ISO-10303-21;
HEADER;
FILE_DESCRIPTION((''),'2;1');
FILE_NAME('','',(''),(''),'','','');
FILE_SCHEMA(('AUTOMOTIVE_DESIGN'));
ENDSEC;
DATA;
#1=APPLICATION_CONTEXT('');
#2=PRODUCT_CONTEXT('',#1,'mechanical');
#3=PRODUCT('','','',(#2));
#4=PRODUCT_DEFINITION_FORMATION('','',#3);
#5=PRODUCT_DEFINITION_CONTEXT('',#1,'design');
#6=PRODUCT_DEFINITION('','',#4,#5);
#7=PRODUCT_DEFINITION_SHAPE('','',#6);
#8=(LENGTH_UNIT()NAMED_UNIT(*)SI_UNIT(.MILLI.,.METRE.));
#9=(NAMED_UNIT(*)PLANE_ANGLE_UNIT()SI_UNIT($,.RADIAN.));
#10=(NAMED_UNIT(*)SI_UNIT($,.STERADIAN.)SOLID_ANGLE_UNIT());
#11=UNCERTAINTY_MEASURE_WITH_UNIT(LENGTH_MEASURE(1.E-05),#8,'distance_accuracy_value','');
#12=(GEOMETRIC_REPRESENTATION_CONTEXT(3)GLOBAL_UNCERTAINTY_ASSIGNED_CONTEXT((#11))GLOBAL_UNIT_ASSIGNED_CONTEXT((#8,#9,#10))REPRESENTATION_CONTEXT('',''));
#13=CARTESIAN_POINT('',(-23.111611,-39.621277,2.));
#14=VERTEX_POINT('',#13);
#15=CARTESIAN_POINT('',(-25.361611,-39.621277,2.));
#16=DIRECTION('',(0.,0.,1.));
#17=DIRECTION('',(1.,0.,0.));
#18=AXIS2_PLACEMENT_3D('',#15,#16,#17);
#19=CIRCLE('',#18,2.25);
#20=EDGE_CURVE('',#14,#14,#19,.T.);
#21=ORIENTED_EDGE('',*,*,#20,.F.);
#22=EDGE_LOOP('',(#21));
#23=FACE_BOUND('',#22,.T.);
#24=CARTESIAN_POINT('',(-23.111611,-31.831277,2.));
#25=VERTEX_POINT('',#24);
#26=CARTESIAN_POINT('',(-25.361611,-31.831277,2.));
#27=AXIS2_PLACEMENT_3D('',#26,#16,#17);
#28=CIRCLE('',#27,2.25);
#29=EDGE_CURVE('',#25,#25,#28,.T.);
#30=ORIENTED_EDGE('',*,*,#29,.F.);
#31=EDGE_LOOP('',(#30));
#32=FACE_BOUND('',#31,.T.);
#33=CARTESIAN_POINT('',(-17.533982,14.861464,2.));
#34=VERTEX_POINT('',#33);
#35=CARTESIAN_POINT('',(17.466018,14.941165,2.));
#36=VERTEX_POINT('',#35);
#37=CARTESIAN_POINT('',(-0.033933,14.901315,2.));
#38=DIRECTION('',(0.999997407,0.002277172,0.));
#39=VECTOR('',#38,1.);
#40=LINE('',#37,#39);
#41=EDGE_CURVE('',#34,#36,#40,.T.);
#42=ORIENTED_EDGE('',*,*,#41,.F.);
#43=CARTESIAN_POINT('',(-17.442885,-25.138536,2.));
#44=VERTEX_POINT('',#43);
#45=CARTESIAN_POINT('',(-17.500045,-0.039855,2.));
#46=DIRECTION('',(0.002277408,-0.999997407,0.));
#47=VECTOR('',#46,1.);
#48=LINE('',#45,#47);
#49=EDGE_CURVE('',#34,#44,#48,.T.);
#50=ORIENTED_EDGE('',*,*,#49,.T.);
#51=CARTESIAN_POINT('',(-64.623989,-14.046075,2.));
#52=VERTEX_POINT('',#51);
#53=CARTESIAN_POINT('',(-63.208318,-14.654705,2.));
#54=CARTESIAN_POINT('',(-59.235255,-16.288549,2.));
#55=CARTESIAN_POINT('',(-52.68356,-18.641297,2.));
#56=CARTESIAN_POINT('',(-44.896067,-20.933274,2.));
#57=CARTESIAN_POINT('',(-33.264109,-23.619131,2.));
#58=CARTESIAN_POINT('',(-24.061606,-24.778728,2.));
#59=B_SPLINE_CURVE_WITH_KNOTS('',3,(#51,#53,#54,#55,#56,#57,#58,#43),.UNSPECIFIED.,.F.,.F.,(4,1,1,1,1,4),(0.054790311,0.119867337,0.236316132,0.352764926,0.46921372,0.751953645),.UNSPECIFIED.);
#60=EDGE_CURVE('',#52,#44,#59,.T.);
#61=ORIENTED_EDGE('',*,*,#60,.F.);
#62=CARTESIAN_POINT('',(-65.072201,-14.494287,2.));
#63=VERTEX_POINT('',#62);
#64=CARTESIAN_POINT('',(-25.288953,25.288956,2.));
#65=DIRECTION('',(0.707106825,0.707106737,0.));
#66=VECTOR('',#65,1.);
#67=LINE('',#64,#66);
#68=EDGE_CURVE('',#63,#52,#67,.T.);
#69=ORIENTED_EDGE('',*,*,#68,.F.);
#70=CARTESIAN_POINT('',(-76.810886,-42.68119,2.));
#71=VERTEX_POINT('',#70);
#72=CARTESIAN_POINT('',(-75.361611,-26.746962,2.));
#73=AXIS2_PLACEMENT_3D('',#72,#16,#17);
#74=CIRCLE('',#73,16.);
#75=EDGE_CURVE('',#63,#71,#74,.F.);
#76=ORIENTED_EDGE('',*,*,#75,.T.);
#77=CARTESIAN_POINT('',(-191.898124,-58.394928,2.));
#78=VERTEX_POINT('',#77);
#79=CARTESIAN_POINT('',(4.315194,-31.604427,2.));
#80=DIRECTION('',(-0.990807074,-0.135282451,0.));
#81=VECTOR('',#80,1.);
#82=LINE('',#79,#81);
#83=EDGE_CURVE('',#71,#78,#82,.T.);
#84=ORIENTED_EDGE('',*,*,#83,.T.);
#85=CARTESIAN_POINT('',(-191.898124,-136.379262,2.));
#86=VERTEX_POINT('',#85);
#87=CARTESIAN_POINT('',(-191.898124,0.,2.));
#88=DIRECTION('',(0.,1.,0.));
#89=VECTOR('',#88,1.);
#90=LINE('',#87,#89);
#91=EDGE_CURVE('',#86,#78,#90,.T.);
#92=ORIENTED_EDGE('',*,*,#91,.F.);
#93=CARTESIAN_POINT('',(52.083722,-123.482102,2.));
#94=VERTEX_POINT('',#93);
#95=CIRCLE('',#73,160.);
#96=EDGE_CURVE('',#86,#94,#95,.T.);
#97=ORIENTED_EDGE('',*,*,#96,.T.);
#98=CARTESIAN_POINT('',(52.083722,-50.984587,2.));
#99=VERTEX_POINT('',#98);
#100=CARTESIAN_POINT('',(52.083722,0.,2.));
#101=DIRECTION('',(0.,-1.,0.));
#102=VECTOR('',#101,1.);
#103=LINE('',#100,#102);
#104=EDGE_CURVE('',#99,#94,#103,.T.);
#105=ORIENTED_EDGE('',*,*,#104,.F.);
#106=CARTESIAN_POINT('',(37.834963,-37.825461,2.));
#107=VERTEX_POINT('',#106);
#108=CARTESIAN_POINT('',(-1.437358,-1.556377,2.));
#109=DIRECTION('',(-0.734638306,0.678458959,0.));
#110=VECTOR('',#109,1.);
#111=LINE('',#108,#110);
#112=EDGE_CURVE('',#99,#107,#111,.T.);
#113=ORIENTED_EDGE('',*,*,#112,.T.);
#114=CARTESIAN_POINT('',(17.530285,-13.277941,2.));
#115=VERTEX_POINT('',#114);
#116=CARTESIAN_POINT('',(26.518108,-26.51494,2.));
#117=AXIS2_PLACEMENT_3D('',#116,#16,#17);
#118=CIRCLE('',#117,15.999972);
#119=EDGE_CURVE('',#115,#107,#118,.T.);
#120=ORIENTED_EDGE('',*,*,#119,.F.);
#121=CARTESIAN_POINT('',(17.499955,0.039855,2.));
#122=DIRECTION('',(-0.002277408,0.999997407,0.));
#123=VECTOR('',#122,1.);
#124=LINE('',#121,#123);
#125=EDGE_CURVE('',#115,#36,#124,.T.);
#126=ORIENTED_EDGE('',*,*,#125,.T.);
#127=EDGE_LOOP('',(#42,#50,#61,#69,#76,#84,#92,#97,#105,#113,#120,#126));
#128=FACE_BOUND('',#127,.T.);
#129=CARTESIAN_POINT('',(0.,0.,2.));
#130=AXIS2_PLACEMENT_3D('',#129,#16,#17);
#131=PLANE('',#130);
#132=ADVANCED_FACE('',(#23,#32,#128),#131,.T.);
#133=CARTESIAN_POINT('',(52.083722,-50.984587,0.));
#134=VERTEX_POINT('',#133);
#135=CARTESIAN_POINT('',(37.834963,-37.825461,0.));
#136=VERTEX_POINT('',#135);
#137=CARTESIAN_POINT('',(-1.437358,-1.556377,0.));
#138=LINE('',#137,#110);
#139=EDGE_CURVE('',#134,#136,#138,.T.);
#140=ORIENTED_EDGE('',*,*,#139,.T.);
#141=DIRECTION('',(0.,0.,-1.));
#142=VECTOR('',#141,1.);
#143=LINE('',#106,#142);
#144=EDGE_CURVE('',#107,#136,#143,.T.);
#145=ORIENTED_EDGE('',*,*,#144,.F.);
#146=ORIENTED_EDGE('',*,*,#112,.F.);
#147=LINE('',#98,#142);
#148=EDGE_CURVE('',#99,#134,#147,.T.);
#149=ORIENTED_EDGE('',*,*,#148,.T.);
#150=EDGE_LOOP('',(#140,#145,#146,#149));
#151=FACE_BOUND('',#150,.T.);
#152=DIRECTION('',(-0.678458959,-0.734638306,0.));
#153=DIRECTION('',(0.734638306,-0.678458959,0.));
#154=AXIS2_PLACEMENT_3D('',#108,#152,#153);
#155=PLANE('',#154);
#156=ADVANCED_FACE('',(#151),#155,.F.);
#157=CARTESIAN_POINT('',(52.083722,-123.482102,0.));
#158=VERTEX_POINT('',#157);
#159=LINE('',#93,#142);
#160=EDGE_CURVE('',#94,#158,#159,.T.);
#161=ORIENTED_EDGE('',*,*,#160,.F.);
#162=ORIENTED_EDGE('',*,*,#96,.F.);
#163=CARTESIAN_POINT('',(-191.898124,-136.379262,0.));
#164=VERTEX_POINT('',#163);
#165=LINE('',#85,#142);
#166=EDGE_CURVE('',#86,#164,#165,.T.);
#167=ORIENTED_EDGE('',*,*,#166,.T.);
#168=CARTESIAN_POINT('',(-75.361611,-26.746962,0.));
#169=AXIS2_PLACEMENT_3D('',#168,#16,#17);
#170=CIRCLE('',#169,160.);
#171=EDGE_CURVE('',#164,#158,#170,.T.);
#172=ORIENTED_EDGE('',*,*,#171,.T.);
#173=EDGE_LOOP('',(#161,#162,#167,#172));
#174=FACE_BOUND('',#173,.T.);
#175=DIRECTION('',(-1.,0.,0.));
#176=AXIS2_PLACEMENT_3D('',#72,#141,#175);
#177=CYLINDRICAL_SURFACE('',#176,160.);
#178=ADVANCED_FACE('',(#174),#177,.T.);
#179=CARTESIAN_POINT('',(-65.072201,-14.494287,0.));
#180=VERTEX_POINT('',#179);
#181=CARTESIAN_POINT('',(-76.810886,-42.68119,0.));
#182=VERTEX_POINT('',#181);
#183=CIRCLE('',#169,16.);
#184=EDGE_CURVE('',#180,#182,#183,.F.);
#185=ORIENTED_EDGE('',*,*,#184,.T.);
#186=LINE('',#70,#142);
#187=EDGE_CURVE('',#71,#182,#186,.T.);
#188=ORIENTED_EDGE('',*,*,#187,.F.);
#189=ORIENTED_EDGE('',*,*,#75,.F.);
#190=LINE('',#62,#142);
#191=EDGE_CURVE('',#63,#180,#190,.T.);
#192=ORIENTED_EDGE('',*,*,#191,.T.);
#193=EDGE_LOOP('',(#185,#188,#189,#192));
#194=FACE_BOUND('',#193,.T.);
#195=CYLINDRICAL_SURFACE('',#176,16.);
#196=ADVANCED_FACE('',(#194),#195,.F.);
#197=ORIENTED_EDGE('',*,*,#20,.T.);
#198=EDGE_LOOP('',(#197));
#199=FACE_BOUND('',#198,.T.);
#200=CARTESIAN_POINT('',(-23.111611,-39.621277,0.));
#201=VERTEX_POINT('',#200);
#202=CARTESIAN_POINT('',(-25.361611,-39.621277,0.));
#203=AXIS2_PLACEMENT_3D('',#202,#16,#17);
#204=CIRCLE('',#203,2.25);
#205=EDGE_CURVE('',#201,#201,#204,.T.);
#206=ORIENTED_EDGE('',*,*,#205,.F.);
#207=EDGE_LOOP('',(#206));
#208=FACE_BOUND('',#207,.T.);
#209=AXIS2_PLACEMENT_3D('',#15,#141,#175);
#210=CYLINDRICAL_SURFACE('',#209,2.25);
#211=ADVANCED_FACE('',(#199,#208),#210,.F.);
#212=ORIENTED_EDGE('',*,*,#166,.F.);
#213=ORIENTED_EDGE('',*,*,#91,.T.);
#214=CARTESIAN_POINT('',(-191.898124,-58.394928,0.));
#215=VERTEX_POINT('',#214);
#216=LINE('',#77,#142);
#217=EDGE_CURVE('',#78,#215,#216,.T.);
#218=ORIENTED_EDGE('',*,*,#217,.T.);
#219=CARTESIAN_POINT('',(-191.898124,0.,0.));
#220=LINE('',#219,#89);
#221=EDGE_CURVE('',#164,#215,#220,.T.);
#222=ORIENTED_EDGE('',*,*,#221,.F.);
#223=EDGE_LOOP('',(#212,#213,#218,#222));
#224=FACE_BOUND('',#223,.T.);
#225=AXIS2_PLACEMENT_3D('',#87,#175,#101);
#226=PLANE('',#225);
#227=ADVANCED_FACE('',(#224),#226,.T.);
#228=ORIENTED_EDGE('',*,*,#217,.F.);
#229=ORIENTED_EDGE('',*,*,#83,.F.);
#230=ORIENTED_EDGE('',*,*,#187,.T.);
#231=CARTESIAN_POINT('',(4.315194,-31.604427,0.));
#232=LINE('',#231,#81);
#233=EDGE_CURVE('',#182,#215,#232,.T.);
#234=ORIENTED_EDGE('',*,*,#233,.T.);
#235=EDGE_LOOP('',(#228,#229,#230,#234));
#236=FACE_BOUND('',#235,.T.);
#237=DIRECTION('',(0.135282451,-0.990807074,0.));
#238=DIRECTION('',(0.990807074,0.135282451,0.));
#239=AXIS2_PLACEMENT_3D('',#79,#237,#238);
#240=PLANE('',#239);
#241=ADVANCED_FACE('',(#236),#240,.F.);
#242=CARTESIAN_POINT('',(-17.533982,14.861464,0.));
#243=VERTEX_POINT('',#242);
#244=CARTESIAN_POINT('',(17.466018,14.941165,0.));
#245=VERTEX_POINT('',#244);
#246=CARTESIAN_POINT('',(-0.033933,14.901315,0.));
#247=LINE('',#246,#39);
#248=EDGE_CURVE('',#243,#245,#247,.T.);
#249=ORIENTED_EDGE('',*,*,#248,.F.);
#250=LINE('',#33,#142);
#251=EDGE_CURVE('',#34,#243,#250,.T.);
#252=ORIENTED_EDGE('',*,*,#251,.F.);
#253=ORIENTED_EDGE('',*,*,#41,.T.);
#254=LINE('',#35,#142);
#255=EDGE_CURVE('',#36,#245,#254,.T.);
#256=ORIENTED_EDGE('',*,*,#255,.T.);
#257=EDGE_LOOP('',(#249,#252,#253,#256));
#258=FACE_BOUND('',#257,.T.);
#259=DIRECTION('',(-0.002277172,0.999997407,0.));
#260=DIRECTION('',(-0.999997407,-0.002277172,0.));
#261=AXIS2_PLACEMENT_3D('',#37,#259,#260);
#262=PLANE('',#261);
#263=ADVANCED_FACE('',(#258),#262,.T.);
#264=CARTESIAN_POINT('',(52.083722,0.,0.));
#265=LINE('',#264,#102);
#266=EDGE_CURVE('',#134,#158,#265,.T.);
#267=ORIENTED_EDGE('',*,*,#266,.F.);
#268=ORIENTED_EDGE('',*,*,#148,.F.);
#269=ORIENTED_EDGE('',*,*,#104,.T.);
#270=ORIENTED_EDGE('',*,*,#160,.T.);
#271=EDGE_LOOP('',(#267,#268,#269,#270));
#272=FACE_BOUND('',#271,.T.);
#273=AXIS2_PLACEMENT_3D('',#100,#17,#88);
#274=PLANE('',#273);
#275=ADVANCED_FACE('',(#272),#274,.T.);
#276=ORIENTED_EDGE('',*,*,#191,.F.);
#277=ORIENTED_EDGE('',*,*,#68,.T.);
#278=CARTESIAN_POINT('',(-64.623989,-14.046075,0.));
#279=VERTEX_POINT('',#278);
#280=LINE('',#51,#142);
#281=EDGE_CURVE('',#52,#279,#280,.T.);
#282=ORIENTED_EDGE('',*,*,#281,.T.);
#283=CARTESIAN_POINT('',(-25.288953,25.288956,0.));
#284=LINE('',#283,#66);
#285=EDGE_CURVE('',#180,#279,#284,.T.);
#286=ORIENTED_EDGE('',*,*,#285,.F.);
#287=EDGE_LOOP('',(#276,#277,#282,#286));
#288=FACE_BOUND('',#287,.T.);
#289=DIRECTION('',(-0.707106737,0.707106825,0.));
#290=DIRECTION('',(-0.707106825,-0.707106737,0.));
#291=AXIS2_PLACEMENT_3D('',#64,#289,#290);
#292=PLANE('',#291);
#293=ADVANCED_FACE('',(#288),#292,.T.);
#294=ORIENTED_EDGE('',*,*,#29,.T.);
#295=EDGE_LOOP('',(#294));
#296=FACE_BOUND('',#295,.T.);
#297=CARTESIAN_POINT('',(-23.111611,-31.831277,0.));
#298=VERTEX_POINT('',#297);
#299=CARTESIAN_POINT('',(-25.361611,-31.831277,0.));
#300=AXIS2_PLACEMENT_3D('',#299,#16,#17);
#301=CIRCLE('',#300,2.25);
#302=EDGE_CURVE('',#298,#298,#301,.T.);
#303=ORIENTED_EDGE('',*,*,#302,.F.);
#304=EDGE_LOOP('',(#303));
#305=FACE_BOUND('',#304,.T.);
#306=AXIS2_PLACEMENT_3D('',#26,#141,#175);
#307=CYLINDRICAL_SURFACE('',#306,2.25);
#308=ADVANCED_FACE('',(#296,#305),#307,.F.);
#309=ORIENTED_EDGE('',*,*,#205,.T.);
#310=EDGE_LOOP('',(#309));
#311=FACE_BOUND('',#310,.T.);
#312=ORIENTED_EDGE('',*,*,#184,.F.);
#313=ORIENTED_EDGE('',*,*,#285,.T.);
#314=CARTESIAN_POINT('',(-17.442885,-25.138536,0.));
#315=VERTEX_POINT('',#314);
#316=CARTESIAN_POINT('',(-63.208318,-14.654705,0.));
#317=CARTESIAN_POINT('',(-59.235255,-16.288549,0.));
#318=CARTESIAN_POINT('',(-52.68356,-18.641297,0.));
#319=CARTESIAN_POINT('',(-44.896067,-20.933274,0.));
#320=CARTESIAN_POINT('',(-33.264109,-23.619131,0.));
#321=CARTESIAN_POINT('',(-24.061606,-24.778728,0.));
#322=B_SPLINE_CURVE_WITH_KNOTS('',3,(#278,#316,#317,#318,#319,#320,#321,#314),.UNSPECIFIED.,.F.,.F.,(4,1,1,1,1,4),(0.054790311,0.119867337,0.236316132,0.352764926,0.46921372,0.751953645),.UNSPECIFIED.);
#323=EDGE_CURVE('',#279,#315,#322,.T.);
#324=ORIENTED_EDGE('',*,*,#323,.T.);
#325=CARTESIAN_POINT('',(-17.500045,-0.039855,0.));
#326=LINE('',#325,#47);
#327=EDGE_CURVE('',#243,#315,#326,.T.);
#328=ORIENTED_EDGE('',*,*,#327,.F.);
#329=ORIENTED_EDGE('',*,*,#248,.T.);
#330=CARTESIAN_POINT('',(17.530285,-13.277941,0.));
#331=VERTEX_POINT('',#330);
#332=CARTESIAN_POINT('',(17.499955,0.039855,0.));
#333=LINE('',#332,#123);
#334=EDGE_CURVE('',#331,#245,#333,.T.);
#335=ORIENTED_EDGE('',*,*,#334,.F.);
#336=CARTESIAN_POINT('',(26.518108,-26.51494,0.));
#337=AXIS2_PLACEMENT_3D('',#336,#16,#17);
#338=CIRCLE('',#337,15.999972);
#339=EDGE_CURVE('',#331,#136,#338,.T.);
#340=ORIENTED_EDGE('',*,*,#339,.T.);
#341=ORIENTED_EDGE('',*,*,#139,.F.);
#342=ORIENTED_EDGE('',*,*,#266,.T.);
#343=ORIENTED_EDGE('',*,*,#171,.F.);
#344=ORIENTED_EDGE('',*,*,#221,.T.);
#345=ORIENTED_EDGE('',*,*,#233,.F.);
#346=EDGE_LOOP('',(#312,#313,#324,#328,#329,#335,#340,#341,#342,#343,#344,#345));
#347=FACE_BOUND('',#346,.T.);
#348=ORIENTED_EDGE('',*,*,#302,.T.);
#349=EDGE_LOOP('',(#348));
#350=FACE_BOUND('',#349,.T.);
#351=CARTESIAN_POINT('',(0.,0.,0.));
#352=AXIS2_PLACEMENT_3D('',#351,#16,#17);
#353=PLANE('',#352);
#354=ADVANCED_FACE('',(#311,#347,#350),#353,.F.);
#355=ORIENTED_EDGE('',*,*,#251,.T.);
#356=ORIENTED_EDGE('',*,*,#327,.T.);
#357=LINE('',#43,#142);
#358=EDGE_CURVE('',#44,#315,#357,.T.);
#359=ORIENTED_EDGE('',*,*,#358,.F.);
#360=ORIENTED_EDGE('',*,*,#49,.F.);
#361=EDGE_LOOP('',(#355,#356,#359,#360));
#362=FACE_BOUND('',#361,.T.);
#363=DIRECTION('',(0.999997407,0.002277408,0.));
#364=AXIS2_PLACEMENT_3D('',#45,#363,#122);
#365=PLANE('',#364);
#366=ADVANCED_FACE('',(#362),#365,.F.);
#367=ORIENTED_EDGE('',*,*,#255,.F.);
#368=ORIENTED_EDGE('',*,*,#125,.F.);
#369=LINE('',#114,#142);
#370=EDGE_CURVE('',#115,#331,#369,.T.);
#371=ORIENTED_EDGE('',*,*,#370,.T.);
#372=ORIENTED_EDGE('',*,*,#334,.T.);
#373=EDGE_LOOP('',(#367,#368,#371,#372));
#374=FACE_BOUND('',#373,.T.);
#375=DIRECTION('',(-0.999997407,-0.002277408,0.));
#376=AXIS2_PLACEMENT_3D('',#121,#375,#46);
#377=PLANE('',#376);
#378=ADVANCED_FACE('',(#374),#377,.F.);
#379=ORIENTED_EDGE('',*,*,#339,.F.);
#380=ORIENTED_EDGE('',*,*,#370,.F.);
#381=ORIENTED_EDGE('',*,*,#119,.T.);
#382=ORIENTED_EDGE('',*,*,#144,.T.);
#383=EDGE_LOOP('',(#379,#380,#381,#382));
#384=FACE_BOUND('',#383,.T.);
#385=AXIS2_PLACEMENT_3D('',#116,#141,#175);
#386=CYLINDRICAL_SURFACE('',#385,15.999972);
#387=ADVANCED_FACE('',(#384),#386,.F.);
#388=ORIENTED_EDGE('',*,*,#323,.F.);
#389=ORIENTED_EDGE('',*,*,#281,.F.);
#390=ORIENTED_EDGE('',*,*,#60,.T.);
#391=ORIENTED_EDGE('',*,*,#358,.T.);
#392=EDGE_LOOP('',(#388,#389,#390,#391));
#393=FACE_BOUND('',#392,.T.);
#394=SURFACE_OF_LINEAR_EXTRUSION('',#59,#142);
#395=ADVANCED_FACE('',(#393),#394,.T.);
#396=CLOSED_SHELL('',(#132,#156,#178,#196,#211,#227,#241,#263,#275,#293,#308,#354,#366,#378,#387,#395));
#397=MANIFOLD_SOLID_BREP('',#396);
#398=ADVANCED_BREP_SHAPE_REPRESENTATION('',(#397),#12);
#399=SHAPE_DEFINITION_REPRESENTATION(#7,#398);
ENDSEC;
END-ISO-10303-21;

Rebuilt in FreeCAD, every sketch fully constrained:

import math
import FreeCAD as App
import Part
import Sketcher
from FreeCAD import Vector

doc = App.newDocument("Part")
params = doc.addObject("Spreadsheet::Sheet", "Params")
for row, (alias, value) in enumerate([
    ("sketch1_radius", "16 mm"),
    ("sketch1_radius2", "160 mm"),
    ("sketch1_diameter", "4.5 mm"),
    ("sketch1_diameter2", "4.5 mm"),
    ("pad1_length", "2 mm"),
], start=1):
    params.set(f"A{row}", alias)
    params.set(f"B{row}", "=" + value)
    params.setAlias(f"B{row}", alias)

body = doc.addObject("PartDesign::Body", "Body")

# Sketch on XY plane
sketch1 = body.newObject("Sketcher::SketchObject", "Sketch")
sketch1.AttachmentSupport = (doc.getObject("XY_Plane"), [""])
sketch1.MapMode = "FlatFace"
sketch1.addGeometry([
    Part.ArcOfCircle(Part.Circle(Vector(-75.361611, -26.746962, 0), Vector(0, 0, 1), 16), math.radians(-95.196957), math.radians(49.97752)),  # 0
    Part.LineSegment(Vector(-76.810886, -42.68119, 0), Vector(-191.898124, -58.394928, 0)),  # 1
    Part.LineSegment(Vector(-191.898124, -58.394928, 0), Vector(-191.898124, -136.379262, 0)),  # 2
    Part.ArcOfCircle(Part.Circle(Vector(-75.361611, -26.746962, 0), Vector(0, 0, 1), 160), math.radians(-136.748515), math.radians(-37.199677)),  # 3
    Part.LineSegment(Vector(52.083722, -123.482102, 0), Vector(52.083722, -50.984587, 0)),  # 4
    Part.LineSegment(Vector(52.083722, -50.984587, 0), Vector(37.834963, -37.825461, 0)),  # 5
    Part.ArcOfCircle(Part.Circle(Vector(26.518108, -26.51494, 0), Vector(0, 0, 1), 15.999972), math.radians(124.176209), math.radians(315.01604)),  # 6
    Part.LineSegment(Vector(17.530285, -13.277941, 0), Vector(17.466018, 14.941165, 0)),  # 7
    Part.LineSegment(Vector(17.466018, 14.941165, 0), Vector(-17.533982, 14.861464, 0)),  # 8
    Part.LineSegment(Vector(-17.533982, 14.861464, 0), Vector(-17.442887, -25.137999, 0)),  # 9
    Part.LineSegment(Vector(-17.442887, -25.137999, 0), Vector(-17.442885, -25.138536, 0)),  # 10
    Part.BSplineCurve([Vector(-64.623989, -14.046075, 0), Vector(-63.208318, -14.654705, 0), Vector(-59.235255, -16.288549, 0), Vector(-52.68356, -18.641297, 0), Vector(-44.896067, -20.933274, 0), Vector(-33.264109, -23.619131, 0), Vector(-24.061606, -24.778728, 0), Vector(-17.442885, -25.138536, 0)], [4, 1, 1, 1, 1, 4], [0.054790311, 0.119867337, 0.236316132, 0.352764926, 0.46921372, 0.751953645], False, 3, [1, 1, 1, 1, 1, 1, 1, 1], False),  # 11
    Part.LineSegment(Vector(-64.623989, -14.046075, 0), Vector(-65.072201, -14.494287, 0)),  # 12
    Part.Circle(Vector(-25.361611, -39.621277, 0), Vector(0, 0, 1), 2.25),  # 13
    Part.Circle(Vector(-25.361611, -31.831277, 0), Vector(0, 0, 1), 2.25),  # 14
], False)
sketch1.addConstraint([
    Sketcher.Constraint("Block", 11),
    Sketcher.Constraint("Coincident", 0, 1, 1, 1),
    Sketcher.Constraint("Coincident", 1, 2, 2, 1),
    Sketcher.Constraint("Coincident", 2, 2, 3, 1),
    Sketcher.Constraint("Coincident", 3, 2, 4, 1),
    Sketcher.Constraint("Coincident", 4, 2, 5, 1),
    Sketcher.Constraint("Coincident", 5, 2, 6, 2),
    Sketcher.Constraint("Coincident", 6, 1, 7, 1),
    Sketcher.Constraint("Coincident", 7, 2, 8, 1),
    Sketcher.Constraint("Coincident", 8, 2, 9, 1),
    Sketcher.Constraint("Coincident", 9, 2, 10, 1),
    Sketcher.Constraint("Coincident", 10, 2, 11, 2),
    Sketcher.Constraint("Coincident", 11, 1, 12, 1),
    Sketcher.Constraint("Coincident", 12, 2, 0, 2),
    Sketcher.Constraint("Vertical", 2),
    Sketcher.Constraint("Vertical", 4),
    Sketcher.Constraint("Vertical", 10),
    Sketcher.Constraint("Coincident", 3, 3, 0, 3),
    Sketcher.Constraint("Radius", 0, 16.0),
    Sketcher.Constraint("Radius", 3, 160.0),
    Sketcher.Constraint("Diameter", 13, 4.5),
    Sketcher.Constraint("Diameter", 14, 4.5),
    Sketcher.Constraint("DistanceX", 0, 3, 13, 3, 50.0),
    Sketcher.Constraint("DistanceX", 0, 3, 14, 3, 50.0),
    Sketcher.Constraint("DistanceX", 8, 2, 7, 2, 35.0),
    Sketcher.Constraint("DistanceY", 10, 2, 8, 2, 40.0),
    Sketcher.Constraint("DistanceY", 13, 3, 14, 3, 7.79),
    Sketcher.Constraint("DistanceY", 9, 2, -1, 1, 25.137999),
    Sketcher.Constraint("Radius", 6, 15.999972),
    Sketcher.Constraint("DistanceY", 6, 3, 6, 1, 13.236999),
    Sketcher.Constraint("DistanceY", 3, 2, -1, 1, 123.482102),
    Sketcher.Constraint("DistanceX", 12, 2, -1, 1, 65.072201),
    Sketcher.Constraint("DistanceY", 2, 2, 0, 3, 109.6323),
    Sketcher.Constraint("DistanceY", 8, 2, 7, 2, 0.079701),
    Sketcher.Constraint("Distance", 5, 19.39561),
    Sketcher.Constraint("Distance", 7, 28.219179),
    Sketcher.Constraint("DistanceY", 2, 2, 2, 1, 77.984333),
    Sketcher.Constraint("DistanceY", 4, 1, 4, 2, 72.497515),
    Sketcher.Constraint("DistanceX", 0, 3, -1, 1, 75.361611),
    Sketcher.Constraint("DistanceY", 0, 1, -1, 1, 42.68119),
    Sketcher.Constraint("DistanceY", 1, 2, -1, 1, 58.394928),
    Sketcher.Constraint("DistanceY", 5, 2, -1, 1, 37.825461),
    Sketcher.Constraint("DistanceX", -1, 1, 7, 2, 17.466018),
    Sketcher.Constraint("DistanceY", 1, 2, 13, 3, 18.773651),
])
sketch1.setExpression("Constraints[18]", "Params.sketch1_radius")
sketch1.setExpression("Constraints[19]", "Params.sketch1_radius2")
sketch1.setExpression("Constraints[20]", "Params.sketch1_diameter")
sketch1.setExpression("Constraints[21]", "Params.sketch1_diameter2")
pad1 = body.newObject("PartDesign::Pad", "Pad")
pad1.Profile = sketch1
pad1.setExpression("Length", "Params.pad1_length")

doc.recompute()
